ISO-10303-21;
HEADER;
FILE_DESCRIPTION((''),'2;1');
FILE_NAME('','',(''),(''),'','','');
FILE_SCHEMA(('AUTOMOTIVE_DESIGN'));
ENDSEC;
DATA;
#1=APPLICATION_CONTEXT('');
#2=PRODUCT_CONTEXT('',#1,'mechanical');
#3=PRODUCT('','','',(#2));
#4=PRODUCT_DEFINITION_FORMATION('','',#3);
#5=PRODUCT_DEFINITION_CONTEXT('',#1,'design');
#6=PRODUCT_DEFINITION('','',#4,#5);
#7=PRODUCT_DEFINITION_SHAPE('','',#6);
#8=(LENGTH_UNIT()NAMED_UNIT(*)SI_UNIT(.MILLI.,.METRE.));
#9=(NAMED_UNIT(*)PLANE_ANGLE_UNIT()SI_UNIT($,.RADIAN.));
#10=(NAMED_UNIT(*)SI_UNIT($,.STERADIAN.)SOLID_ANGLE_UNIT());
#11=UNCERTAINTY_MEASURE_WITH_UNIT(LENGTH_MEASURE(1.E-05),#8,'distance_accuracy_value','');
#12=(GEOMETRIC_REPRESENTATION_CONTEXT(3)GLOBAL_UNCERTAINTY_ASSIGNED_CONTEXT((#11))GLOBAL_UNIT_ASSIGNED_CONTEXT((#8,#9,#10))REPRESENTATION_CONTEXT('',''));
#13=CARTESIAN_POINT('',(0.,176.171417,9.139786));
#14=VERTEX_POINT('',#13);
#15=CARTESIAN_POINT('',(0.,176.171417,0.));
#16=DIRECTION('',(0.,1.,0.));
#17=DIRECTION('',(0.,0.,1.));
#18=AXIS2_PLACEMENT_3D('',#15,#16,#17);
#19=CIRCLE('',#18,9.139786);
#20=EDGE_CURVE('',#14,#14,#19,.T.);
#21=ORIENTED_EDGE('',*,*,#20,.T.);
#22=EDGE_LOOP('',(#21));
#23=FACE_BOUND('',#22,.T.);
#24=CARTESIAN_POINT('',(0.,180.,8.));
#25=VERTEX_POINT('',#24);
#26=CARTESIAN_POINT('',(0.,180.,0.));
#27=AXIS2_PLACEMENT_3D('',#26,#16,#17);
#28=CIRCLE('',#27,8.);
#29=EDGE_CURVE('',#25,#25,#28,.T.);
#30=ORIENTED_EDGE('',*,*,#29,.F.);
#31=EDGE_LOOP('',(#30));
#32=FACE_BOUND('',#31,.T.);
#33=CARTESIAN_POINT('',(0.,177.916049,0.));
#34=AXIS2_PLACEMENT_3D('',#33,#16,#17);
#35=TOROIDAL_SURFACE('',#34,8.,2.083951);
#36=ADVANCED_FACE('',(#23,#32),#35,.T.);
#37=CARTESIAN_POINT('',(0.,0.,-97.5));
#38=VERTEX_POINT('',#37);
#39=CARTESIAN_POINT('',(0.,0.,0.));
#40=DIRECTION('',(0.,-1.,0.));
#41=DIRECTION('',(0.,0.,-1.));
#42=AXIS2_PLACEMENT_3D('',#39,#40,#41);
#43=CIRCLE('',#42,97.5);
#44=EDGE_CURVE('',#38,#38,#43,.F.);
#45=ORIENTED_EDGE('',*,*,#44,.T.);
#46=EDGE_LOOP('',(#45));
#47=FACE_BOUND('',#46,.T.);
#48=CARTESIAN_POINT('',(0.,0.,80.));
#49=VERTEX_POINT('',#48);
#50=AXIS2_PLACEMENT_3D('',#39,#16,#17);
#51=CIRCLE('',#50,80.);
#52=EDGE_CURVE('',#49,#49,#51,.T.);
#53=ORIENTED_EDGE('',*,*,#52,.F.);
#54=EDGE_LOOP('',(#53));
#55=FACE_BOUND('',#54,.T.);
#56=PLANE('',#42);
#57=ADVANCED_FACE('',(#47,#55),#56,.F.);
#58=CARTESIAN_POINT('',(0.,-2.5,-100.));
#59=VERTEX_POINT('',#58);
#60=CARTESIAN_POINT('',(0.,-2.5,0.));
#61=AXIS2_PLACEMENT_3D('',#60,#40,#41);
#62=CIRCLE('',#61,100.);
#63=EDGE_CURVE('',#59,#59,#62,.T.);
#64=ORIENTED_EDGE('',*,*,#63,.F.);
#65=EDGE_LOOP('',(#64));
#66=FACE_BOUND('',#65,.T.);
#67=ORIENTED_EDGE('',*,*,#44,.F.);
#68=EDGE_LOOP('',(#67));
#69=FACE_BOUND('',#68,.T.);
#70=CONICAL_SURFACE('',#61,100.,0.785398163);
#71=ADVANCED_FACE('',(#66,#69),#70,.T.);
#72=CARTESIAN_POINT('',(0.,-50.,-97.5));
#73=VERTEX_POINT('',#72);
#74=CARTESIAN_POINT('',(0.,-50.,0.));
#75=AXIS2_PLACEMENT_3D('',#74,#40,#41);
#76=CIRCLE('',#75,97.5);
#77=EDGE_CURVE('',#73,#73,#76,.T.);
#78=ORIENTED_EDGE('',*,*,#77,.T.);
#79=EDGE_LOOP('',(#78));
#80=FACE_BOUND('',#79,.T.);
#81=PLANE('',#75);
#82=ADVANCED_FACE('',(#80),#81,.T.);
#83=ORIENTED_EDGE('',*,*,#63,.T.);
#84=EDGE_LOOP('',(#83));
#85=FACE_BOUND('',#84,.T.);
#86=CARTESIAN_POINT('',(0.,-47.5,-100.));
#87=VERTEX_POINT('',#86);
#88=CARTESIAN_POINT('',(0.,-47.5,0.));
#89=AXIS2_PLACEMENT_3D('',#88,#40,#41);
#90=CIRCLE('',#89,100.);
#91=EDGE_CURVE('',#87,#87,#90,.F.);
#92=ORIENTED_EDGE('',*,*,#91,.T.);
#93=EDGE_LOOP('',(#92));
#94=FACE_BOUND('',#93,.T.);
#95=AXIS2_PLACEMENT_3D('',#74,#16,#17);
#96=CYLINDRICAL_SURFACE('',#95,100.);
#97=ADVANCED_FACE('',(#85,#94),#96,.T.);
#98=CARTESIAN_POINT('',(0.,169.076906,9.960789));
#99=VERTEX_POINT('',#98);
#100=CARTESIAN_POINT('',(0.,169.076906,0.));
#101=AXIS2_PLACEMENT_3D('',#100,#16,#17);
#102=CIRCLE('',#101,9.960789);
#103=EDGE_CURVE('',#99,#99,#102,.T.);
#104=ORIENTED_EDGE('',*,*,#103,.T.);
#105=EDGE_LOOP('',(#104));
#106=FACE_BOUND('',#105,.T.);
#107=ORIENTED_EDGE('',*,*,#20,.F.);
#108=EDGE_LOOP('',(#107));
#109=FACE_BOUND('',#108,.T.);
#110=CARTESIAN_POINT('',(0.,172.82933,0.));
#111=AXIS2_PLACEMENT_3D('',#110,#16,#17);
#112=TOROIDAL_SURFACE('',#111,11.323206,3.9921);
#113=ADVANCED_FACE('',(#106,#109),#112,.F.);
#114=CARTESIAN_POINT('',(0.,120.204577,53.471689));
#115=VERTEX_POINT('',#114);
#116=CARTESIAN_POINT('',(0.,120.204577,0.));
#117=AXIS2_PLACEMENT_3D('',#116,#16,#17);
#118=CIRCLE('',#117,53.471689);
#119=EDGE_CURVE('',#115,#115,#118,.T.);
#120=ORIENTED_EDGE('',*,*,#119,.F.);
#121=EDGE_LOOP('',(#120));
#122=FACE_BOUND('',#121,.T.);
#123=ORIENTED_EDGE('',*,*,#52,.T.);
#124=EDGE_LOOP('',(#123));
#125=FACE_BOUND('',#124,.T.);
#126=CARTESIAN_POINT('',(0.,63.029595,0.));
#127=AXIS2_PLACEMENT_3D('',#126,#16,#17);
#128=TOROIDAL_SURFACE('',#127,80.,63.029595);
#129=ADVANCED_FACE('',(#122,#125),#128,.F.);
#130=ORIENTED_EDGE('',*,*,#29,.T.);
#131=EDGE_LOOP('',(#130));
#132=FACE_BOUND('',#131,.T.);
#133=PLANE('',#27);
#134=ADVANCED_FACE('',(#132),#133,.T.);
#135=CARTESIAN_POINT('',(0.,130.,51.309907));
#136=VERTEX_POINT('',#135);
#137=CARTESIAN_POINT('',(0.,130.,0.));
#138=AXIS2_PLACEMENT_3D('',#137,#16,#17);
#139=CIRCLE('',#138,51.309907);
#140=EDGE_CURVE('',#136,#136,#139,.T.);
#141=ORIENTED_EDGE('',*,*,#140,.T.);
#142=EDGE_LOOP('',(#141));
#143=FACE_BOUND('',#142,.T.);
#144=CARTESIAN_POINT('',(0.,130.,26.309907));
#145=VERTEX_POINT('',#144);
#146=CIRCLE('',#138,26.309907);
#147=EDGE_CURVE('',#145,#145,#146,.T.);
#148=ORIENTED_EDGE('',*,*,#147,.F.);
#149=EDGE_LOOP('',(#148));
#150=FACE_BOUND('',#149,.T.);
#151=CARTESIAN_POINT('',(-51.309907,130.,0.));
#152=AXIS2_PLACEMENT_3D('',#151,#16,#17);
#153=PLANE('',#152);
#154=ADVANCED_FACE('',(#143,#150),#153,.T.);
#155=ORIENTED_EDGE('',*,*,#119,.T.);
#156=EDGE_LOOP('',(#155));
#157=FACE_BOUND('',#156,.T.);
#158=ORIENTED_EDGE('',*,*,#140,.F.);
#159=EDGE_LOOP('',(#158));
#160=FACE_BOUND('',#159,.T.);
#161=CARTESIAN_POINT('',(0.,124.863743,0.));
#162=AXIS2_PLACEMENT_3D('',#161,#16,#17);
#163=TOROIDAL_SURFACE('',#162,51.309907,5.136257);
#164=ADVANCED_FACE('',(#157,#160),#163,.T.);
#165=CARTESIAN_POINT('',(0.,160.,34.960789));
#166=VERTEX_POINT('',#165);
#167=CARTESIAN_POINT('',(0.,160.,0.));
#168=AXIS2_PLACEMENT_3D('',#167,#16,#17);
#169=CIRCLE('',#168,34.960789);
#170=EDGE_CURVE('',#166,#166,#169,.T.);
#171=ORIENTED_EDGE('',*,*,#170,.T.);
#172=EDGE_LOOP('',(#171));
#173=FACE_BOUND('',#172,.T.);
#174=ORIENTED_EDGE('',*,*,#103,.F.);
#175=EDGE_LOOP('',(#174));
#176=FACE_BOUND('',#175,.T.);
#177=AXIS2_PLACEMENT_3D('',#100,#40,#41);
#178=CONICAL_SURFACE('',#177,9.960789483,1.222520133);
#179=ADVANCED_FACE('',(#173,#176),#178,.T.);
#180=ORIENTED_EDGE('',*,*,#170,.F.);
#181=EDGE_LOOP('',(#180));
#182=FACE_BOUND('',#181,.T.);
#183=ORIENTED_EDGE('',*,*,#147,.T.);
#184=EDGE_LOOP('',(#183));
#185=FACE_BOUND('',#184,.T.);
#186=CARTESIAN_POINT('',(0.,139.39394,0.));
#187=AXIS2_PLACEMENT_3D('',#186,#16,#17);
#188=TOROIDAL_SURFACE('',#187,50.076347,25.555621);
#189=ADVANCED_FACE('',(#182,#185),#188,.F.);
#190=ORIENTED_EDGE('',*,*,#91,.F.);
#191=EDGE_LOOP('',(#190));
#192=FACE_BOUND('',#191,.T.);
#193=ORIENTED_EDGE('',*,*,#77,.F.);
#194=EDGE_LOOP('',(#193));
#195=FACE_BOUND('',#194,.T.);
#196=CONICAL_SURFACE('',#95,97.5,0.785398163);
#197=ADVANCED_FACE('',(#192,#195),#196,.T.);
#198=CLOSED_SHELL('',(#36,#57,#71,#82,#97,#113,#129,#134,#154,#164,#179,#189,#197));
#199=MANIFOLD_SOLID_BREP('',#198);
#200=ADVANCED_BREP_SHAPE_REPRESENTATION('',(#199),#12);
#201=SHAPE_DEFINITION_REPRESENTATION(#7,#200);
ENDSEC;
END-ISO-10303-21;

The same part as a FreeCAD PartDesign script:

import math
import FreeCAD as App
import Part
import Sketcher

V = App.Vector


def edges_at(feature, points):
    """Names of the edges that pass closest to the given points."""
    edges = feature.Shape.Edges
    near = lambda p: min(range(len(edges)), key=lambda i: edges[i].distToShape(Part.Vertex(*p))[0])
    return sorted({f"Edge{near(p) + 1}" for p in points})

doc = App.newDocument("Part")
body = doc.addObject("PartDesign::Body", "Body")

sketch1 = body.newObject("Sketcher::SketchObject", "Sketch")
sketch1.AttachmentSupport = (doc.getObject("XY_Plane"), [""])
sketch1.MapMode = "FlatFace"
sketch1.addGeometry([
    Part.LineSegment(V(-26.3, 130, 0), V(-51.3, 130, 0)),
    Part.ArcOfCircle(Part.Circle(V(-51.3, 124.9, 0), V(0, 0, 1), 5.1), math.radians(90), math.radians(245)),
    Part.ArcOfCircle(Part.Circle(V(-80, 63, 0), V(0, 0, 1), 63), math.radians(-90), math.radians(65)),
    Part.LineSegment(V(-80, 0, 0), V(0, 0, 0)),
    Part.LineSegment(V(0, 0, 0), V(0, 180, 0)),
    Part.LineSegment(V(0, 180, 0), V(-8, 180, 0)),
    Part.ArcOfCircle(Part.Circle(V(-8, 177.9, 0), V(0, 0, 1), 2.1), math.radians(90), math.radians(237)),
    Part.ArcOfCircle(Part.Circle(V(-11.3, 172.8, 0), V(0, 0, 1), 4), math.radians(-70), math.radians(57)),
    Part.LineSegment(V(-10, 169.1, 0), V(-35, 160, 0)),
    Part.ArcOfCircle(Part.Circle(V(-50.1, 139.4, 0), V(0, 0, 1), 25.6), math.radians(-22), math.radians(54)),
], False)
sketch1.addConstraint([
    Sketcher.Constraint("Tangent", 0, 2, 1, 1),
    Sketcher.Constraint("Tangent", 1, 2, 2, 2),
    Sketcher.Constraint("Tangent", 2, 1, 3, 1),
    Sketcher.Constraint("Coincident", 3, 2, 4, 1),
    Sketcher.Constraint("Coincident", 4, 2, 5, 1),
    Sketcher.Constraint("Tangent", 5, 2, 6, 1),
    Sketcher.Constraint("Tangent", 6, 2, 7, 2),
    Sketcher.Constraint("Tangent", 7, 1, 8, 1),
    Sketcher.Constraint("Coincident", 8, 2, 9, 2),
    Sketcher.Constraint("Coincident", 9, 1, 0, 1),
    Sketcher.Constraint("Horizontal", 0),
    Sketcher.Constraint("Horizontal", 3),
    Sketcher.Constraint("Vertical", 4),
    Sketcher.Constraint("Horizontal", 5),
    Sketcher.Constraint("Coincident", 3, 2, -1, 1),
    Sketcher.Constraint("DistanceX", 0, 2, 0, 1, 25.0),
    Sketcher.Constraint("DistanceX", 3, 1, 3, 2, 80.0),
    Sketcher.Constraint("DistanceX", 5, 2, 5, 1, 8.0),
    Sketcher.Constraint("DistanceY", 4, 1, 4, 2, 180.0),
    Sketcher.Constraint("DistanceY", -1, 1, 0, 2, 130.0),
    Sketcher.Constraint("DistanceY", -1, 1, 8, 2, 160.0),
    Sketcher.Constraint("DistanceX", 8, 2, 7, 1, 25.0),
    Sketcher.Constraint("Radius", 7, 3.9921),
    Sketcher.Constraint("Radius", 6, 2.083951),
    Sketcher.Constraint("Radius", 9, 25.555621),
    Sketcher.Constraint("Radius", 1, 5.136257),
    Sketcher.Constraint("Radius", 2, 63.029595),
    Sketcher.Constraint("DistanceX", 1, 3, 7, 3, 39.986702),
])
revolution = body.newObject("PartDesign::Revolution", "Revolution")
revolution.Profile = sketch1
revolution.ReferenceAxis = (sketch1, ["V_Axis"])
revolution.Angle = 360

sketch2 = body.newObject("Sketcher::SketchObject", "Sketch001")
sketch2.AttachmentSupport = (doc.getObject("XZ_Plane"), [""])
sketch2.MapMode = "FlatFace"
sketch2.addGeometry(Part.Circle(V(0, 0, 0), V(0, 0, 1), 100), False)
sketch2.addConstraint([
    Sketcher.Constraint("Coincident", 0, 3, -1, 1),
    Sketcher.Constraint("Diameter", 0, 200.0),
])
pad1 = body.newObject("PartDesign::Pad", "Pad")
pad1.Profile = sketch2
pad1.Length = 50
doc.recompute()

chamfer = body.newObject("PartDesign::Chamfer", "Chamfer")
chamfer.Base = (pad1, edges_at(pad1, [(-100, 0, 0), (-100, -50, 0)]))
chamfer.Size = 2.5

doc.recompute()
